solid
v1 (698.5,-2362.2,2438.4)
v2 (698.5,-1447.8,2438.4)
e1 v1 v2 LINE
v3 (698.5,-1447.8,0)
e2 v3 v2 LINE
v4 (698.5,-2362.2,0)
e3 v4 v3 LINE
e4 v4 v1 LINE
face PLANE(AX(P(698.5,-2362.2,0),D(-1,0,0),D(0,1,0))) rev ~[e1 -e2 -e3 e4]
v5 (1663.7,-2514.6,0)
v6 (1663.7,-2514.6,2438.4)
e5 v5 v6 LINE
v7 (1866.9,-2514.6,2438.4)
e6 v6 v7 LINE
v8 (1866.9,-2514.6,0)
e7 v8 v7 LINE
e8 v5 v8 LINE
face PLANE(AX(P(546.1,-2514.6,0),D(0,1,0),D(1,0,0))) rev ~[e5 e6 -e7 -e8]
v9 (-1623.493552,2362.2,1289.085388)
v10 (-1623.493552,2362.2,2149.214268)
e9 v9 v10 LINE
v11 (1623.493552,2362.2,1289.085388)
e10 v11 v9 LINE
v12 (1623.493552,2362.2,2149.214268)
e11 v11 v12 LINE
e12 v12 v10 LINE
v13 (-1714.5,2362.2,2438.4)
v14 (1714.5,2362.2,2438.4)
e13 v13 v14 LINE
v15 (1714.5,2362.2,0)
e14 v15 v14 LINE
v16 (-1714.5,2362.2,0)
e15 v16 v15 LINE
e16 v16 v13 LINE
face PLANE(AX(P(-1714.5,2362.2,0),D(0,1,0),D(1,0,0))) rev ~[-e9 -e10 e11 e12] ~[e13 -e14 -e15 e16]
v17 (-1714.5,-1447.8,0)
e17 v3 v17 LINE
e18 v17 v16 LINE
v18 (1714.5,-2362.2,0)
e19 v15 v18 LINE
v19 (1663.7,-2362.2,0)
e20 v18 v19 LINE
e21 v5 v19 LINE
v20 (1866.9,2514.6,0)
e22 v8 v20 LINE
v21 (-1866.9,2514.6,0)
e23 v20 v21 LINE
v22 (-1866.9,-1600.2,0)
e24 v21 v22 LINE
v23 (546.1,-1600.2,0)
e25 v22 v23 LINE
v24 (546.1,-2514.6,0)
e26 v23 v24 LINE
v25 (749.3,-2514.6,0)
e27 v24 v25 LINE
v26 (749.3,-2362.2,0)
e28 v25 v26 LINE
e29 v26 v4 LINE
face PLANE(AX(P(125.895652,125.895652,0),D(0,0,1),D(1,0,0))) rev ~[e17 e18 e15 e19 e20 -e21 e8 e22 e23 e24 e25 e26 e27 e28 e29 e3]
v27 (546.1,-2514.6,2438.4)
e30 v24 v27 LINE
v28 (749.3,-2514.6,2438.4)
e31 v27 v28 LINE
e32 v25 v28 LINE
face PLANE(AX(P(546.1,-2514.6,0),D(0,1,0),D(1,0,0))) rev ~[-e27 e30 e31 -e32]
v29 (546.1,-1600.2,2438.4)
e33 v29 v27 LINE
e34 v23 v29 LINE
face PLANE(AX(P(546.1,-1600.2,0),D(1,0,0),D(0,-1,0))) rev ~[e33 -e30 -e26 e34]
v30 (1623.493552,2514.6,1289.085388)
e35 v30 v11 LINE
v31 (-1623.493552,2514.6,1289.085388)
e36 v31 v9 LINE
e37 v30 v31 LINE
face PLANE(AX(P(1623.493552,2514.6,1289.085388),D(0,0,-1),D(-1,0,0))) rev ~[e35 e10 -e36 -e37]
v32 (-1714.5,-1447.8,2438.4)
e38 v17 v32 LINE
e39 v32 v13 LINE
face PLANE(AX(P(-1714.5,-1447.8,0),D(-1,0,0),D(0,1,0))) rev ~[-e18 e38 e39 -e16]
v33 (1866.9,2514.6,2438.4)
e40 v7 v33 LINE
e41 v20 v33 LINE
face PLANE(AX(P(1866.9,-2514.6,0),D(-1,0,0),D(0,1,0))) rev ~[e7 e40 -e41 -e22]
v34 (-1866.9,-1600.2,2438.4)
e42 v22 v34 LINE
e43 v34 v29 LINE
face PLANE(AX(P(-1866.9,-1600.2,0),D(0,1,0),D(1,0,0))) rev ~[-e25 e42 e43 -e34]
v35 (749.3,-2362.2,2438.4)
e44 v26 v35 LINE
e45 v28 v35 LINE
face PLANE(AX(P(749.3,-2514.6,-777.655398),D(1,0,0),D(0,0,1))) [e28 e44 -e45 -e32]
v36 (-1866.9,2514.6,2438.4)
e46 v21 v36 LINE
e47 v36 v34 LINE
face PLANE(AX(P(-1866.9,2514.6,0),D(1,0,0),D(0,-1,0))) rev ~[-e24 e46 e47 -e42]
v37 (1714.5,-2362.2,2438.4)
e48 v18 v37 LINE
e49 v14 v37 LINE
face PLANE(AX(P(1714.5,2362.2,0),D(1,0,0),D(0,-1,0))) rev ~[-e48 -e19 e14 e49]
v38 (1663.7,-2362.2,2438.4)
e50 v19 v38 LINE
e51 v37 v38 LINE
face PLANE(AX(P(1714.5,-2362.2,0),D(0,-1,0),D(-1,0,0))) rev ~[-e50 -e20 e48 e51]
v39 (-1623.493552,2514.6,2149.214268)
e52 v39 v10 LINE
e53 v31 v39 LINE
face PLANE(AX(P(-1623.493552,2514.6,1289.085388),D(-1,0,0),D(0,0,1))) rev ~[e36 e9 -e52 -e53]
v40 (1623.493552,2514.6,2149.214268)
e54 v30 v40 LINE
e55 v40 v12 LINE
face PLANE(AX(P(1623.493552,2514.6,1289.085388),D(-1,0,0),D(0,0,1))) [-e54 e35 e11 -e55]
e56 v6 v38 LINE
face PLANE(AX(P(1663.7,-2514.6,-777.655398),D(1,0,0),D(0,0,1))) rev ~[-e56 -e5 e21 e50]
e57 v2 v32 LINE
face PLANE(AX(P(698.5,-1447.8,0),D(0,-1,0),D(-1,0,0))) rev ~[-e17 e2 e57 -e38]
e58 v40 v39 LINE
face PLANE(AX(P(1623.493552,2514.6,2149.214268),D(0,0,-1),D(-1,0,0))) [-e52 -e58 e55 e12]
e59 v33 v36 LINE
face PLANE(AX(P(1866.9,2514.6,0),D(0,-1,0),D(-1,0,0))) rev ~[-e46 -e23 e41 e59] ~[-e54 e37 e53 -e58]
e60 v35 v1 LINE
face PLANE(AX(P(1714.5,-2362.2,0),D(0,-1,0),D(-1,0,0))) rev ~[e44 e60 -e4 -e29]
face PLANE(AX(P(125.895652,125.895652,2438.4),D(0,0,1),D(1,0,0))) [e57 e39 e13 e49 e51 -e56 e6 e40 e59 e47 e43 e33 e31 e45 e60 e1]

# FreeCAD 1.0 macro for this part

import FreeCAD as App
import Part
import Sketcher
from FreeCAD import Vector
Q = App.Units.Quantity

doc = App.newDocument("Part")
body = doc.addObject("PartDesign::Body", "Body")

# Sketch on XY plane
sketch1 = body.newObject("Sketcher::SketchObject", "Sketch")
sketch1.AttachmentSupport = (doc.getObject("XY_Plane"), [""])
sketch1.MapMode = "FlatFace"
sketch1.addGeometry([
    Part.LineSegment(Vector(-1867, -1600, 0), Vector(546, -1600, 0)),  # 0
    Part.LineSegment(Vector(546, -1600, 0), Vector(546, -2515, 0)),  # 1
    Part.LineSegment(Vector(546, -2515, 0), Vector(1867, -2515, 0)),  # 2
    Part.LineSegment(Vector(1867, -2515, 0), Vector(1867, 2515, 0)),  # 3
    Part.LineSegment(Vector(1867, 2515, 0), Vector(-1867, 2515, 0)),  # 4
    Part.LineSegment(Vector(-1867, 2515, 0), Vector(-1867, -1600, 0)),  # 5
    Part.LineSegment(Vector(-1714, 2362, 0), Vector(1714, 2362, 0)),  # 6
    Part.LineSegment(Vector(1714, 2362, 0), Vector(1714, -2362, 0)),  # 7
    Part.LineSegment(Vector(1714, -2362, 0), Vector(698, -2362, 0)),  # 8
    Part.LineSegment(Vector(698, -2362, 0), Vector(698, -1448, 0)),  # 9
    Part.LineSegment(Vector(698, -1448, 0), Vector(-1714, -1448, 0)),  # 10
    Part.LineSegment(Vector(-1714, -1448, 0), Vector(-1714, 2362, 0)),  # 11
], False)
sketch1.addConstraint([
    Sketcher.Constraint("Coincident", 0, 2, 1, 1),
    Sketcher.Constraint("Coincident", 1, 2, 2, 1),
    Sketcher.Constraint("Coincident", 2, 2, 3, 1),
    Sketcher.Constraint("Coincident", 3, 2, 4, 1),
    Sketcher.Constraint("Coincident", 4, 2, 5, 1),
    Sketcher.Constraint("Coincident", 5, 2, 0, 1),
    Sketcher.Constraint("Coincident", 6, 2, 7, 1),
    Sketcher.Constraint("Coincident", 7, 2, 8, 1),
    Sketcher.Constraint("Coincident", 8, 2, 9, 1),
    Sketcher.Constraint("Coincident", 9, 2, 10, 1),
    Sketcher.Constraint("Coincident", 10, 2, 11, 1),
    Sketcher.Constraint("Coincident", 11, 2, 6, 1),
    Sketcher.Constraint("Horizontal", 0),
    Sketcher.Constraint("Vertical", 1),
    Sketcher.Constraint("Horizontal", 2),
    Sketcher.Constraint("Vertical", 3),
    Sketcher.Constraint("Horizontal", 4),
    Sketcher.Constraint("Vertical", 5),
    Sketcher.Constraint("Horizontal", 6),
    Sketcher.Constraint("Vertical", 7),
    Sketcher.Constraint("Horizontal", 8),
    Sketcher.Constraint("Vertical", 9),
    Sketcher.Constraint("Horizontal", 10),
    Sketcher.Constraint("Vertical", 11),
    Sketcher.Constraint("Symmetric", 2, 2, 4, 2, -1, 1),
    Sketcher.Constraint("Symmetric", 7, 2, 11, 2, -1, 1),
    Sketcher.Constraint("Equal", 0, 10),
    Sketcher.Constraint("Equal", 1, 9),
    Sketcher.Constraint("DistanceX", 0, 1, 0, 2, Q("95 in")),
    Sketcher.Constraint("DistanceX", 2, 1, 2, 2, Q("52 in")),
    Sketcher.Constraint("DistanceX", 6, 1, 6, 2, Q("135 in")),
    Sketcher.Constraint("DistanceY", 1, 2, 1, 1, Q("36 in")),
    Sketcher.Constraint("DistanceY", 3, 1, 3, 2, Q("198 in")),
    Sketcher.Constraint("DistanceY", 7, 2, 7, 1, Q("186 in")),
])
pad1 = body.newObject("PartDesign::Pad", "Pad")
pad1.Profile = sketch1
pad1.Length = Q("96 in")

# Sketch on XZ plane
sketch2 = body.newObject("Sketcher::SketchObject", "Sketch001")
sketch2.AttachmentSupport = (doc.getObject("XZ_Plane"), [""])
sketch2.MapMode = "FlatFace"
sketch2.AttachmentOffset = App.Placement(Vector(0, 0, 99 * 25.4), App.Rotation())
sketch2.addGeometry([
    Part.LineSegment(Vector(749, 3532, 0), Vector(749, -778, 0)),
    Part.LineSegment(Vector(749, -778, 0), Vector(1664, -778, 0)),
    Part.LineSegment(Vector(1664, -778, 0), Vector(1664, 3532, 0)),
    Part.LineSegment(Vector(1664, 3532, 0), Vector(749, 3532, 0)),
], False)
sketch2.addConstraint([
    Sketcher.Constraint("Coincident", 0, 2, 1, 1),
    Sketcher.Constraint("Coincident", 1, 2, 2, 1),
    Sketcher.Constraint("Coincident", 2, 2, 3, 1),
    Sketcher.Constraint("Coincident", 3, 2, 0, 1),
    Sketcher.Constraint("Vertical", 0),
    Sketcher.Constraint("Horizontal", 1),
    Sketcher.Constraint("Vertical", 2),
    Sketcher.Constraint("Horizontal", 3),
    Sketcher.Constraint("DistanceX", 1, 1, 1, 2, Q("36 in")),
    Sketcher.Constraint("DistanceX", -1, 1, 0, 2, Q("29.5 in")),
    Sketcher.Constraint("DistanceY", 0, 2, 0, 1, Q("4309.368201 mm")),
    Sketcher.Constraint("DistanceY", 0, 2, -1, 1, Q("777.655398 mm")),
])
pocket1 = body.newObject("PartDesign::Pocket", "Pocket")
pocket1.Profile = sketch2
pocket1.Length = Q("16 in")

# Sketch on XZ plane
sketch3 = body.newObject("Sketcher::SketchObject", "Sketch002")
sketch3.AttachmentSupport = (doc.getObject("XZ_Plane"), [""])
sketch3.MapMode = "FlatFace"
sketch3.AttachmentOffset = App.Placement(Vector(0, 0, -99 * 25.4), App.Rotation())
sketch3.addGeometry([
    Part.LineSegment(Vector(1623, 2149, 0), Vector(1623, 1289, 0)),
    Part.LineSegment(Vector(1623, 1289, 0), Vector(-1623, 1289, 0)),
    Part.LineSegment(Vector(-1623, 1289, 0), Vector(-1623, 2149, 0)),
    Part.LineSegment(Vector(-1623, 2149, 0), Vector(1623, 2149, 0)),
], False)
sketch3.addConstraint([
    Sketcher.Constraint("Coincident", 0, 2, 1, 1),
    Sketcher.Constraint("Coincident", 1, 2, 2, 1),
    Sketcher.Constraint("Coincident", 2, 2, 3, 1),
    Sketcher.Constraint("Coincident", 3, 2, 0, 1),
    Sketcher.Constraint("Vertical", 0),
    Sketcher.Constraint("Horizontal", 1),
    Sketcher.Constraint("Vertical", 2),
    Sketcher.Constraint("Horizontal", 3),
    Sketcher.Constraint("DistanceY", 0, 2, 0, 1, Q("860.12888 mm")),
    Sketcher.Constraint("DistanceX", 1, 2, 1, 1, Q("3246.987104 mm")),
    Sketcher.Constraint("DistanceX", -1, 1, 0, 2, Q("1623.493552 mm")),
    Sketcher.Constraint("DistanceY", -1, 1, 0, 2, Q("1289.085388 mm")),
])
pocket2 = body.newObject("PartDesign::Pocket", "Pocket001")
pocket2.Profile = sketch3
pocket2.Length = Q("19 in")
pocket2.Reversed = True

doc.recompute()
